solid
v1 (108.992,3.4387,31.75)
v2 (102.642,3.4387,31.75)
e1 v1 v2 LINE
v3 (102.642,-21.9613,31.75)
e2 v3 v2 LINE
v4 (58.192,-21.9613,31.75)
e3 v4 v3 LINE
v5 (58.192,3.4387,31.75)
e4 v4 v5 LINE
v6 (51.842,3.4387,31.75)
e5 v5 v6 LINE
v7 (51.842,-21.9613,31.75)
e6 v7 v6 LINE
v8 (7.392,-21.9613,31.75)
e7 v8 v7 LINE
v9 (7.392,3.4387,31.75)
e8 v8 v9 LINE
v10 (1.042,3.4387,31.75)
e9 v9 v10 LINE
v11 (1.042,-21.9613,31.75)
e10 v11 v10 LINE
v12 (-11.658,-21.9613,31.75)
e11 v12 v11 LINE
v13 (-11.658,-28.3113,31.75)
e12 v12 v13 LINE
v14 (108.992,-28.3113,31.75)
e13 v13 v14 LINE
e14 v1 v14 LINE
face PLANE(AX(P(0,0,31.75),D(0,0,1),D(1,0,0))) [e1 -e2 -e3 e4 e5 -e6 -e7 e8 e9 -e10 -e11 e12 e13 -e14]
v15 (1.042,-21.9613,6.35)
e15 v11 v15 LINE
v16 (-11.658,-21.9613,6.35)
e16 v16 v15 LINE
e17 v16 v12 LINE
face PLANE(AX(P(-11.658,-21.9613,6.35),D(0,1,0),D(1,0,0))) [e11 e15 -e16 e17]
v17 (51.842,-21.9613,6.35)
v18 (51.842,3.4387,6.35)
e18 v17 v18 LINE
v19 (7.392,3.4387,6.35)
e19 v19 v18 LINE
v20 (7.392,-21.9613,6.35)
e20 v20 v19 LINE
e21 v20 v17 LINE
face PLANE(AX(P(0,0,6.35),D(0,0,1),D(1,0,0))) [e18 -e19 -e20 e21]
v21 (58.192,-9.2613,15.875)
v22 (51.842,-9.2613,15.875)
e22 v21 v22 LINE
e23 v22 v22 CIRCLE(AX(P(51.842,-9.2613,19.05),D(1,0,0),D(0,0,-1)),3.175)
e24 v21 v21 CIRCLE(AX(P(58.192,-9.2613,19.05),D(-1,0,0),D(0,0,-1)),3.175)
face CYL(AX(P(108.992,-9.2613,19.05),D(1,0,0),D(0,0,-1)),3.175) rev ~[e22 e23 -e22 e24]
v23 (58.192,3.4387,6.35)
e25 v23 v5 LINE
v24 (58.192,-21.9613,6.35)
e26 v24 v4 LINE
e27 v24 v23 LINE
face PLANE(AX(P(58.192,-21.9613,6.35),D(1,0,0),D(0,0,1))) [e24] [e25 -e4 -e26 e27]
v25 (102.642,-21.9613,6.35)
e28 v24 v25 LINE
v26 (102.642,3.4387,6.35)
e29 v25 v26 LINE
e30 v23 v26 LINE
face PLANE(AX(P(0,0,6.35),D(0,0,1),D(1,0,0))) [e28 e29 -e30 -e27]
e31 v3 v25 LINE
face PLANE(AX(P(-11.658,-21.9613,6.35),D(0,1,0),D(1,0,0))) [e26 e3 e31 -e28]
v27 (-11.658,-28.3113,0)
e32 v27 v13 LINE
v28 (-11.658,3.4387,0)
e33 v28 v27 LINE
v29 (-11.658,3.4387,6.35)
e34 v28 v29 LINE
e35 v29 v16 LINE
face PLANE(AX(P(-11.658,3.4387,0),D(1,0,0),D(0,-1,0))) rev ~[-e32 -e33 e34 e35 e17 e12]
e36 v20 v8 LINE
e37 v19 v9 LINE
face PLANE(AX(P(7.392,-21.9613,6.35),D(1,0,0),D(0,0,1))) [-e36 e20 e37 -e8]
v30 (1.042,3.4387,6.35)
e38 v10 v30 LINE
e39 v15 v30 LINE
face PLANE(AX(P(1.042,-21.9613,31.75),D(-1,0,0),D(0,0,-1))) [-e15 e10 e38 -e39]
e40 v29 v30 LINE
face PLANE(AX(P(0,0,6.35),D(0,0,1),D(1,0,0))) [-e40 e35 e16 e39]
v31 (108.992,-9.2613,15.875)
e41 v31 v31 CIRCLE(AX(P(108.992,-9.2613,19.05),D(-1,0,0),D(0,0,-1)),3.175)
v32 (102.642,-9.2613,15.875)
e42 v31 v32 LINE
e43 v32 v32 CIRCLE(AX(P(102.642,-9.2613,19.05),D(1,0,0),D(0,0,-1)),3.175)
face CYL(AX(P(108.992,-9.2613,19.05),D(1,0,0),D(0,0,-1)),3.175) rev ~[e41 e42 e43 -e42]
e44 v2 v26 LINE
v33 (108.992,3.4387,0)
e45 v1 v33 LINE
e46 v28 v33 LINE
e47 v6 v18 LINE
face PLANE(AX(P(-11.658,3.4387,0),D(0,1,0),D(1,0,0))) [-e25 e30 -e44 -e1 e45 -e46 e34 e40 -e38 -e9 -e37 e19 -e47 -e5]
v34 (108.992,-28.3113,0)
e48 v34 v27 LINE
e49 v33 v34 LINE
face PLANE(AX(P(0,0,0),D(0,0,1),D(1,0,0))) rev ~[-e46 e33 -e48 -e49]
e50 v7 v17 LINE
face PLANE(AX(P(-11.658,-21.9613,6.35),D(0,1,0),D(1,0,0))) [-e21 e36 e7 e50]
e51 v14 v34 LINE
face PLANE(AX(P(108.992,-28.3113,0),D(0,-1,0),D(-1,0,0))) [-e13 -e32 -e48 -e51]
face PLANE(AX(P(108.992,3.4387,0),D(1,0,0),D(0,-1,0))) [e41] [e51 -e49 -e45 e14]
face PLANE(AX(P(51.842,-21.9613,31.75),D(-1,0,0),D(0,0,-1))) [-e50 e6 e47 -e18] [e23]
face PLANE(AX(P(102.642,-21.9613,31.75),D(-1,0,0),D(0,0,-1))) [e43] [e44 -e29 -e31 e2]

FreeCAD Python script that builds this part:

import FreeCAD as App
import Part
import Sketcher
from FreeCAD import Vector
Q = App.Units.Quantity


def add_polygon(sketch, points):
    """Adds a closed chain of lines whose ends are joined by coincident constraints."""
    first, n = sketch.GeometryCount, len(points)
    for a, b in zip(points, points[1:] + points[:1]):
        sketch.addGeometry(Part.LineSegment(App.Vector(*a, 0), App.Vector(*b, 0)), False)
    for i in range(n):
        sketch.addConstraint(Sketcher.Constraint("Coincident", first + i, 2, first + (i + 1) % n, 1))

doc = App.newDocument("Part")
body = doc.addObject("PartDesign::Body", "Body")

# Sketch on XY plane
sketch1 = body.newObject("Sketcher::SketchObject", "Sketch")
sketch1.AttachmentSupport = (doc.getObject("XY_Plane"), [""])
sketch1.MapMode = "FlatFace"
add_polygon(sketch1, [(109, 3), (-12, 3), (-12, -28), (109, -28)])  # lines 0-3
sketch1.addConstraint([
    Sketcher.Constraint("Horizontal", 0),
    Sketcher.Constraint("Vertical", 1),
    Sketcher.Constraint("Horizontal", 2),
    Sketcher.Constraint("Vertical", 3),
    Sketcher.Constraint("DistanceX", 0, 2, 0, 1, Q("4.75 in")),
    Sketcher.Constraint("DistanceY", 1, 2, 1, 1, Q("1.25 in")),
    Sketcher.Constraint("DistanceX", 0, 2, -1, 1, 11.658),
    Sketcher.Constraint("DistanceY", -1, 1, 0, 2, 3.4387),
])
pad1 = body.newObject("PartDesign::Pad", "Pad")
pad1.Profile = sketch1
pad1.Length = Q("0.25 in")

# Sketch on XY plane
sketch2 = body.newObject("Sketcher::SketchObject", "Sketch001")
sketch2.AttachmentSupport = (doc.getObject("XY_Plane"), [""])
sketch2.MapMode = "FlatFace"
sketch2.AttachmentOffset = App.Placement(Vector(0, 0, 0.25 * 25.4), App.Rotation())
add_polygon(sketch2, [(109, -22), (-12, -22), (-12, -28), (109, -28)])  # lines 0-3
sketch2.addConstraint([
    Sketcher.Constraint("Horizontal", 0),
    Sketcher.Constraint("Vertical", 1),
    Sketcher.Constraint("Horizontal", 2),
    Sketcher.Constraint("Vertical", 3),
    Sketcher.Constraint("DistanceY", 1, 2, 1, 1, Q("0.25 in")),
    Sketcher.Constraint("DistanceX", 0, 2, 0, 1, Q("4.75 in")),
    Sketcher.Constraint("DistanceX", 0, 2, -1, 1, 11.658),
    Sketcher.Constraint("DistanceY", 0, 2, -1, 1, 21.9613),
])
pad2 = body.newObject("PartDesign::Pad", "Pad001")
pad2.Profile = sketch2
pad2.Length = Q("1 in")

# Sketch on XZ plane
sketch3 = body.newObject("Sketcher::SketchObject", "Sketch002")
sketch3.AttachmentSupport = (doc.getObject("XZ_Plane"), [""])
sketch3.MapMode = "FlatFace"
sketch3.AttachmentOffset = App.Placement(Vector(0, 0, 21.9613), App.Rotation())
add_polygon(sketch3, [(7, 6), (1, 6), (1, 32), (7, 32)])  # lines 0-3
add_polygon(sketch3, [(58, 6), (52, 6), (52, 32), (58, 32)])  # lines 4-7
add_polygon(sketch3, [(109, 6), (103, 6), (103, 32), (109, 32)])  # lines 8-11
sketch3.addConstraint([
    Sketcher.Constraint("Horizontal", 0),
    Sketcher.Constraint("Vertical", 1),
    Sketcher.Constraint("Horizontal", 2),
    Sketcher.Constraint("Vertical", 3),
    Sketcher.Constraint("Horizontal", 4),
    Sketcher.Constraint("Vertical", 5),
    Sketcher.Constraint("Horizontal", 6),
    Sketcher.Constraint("Vertical", 7),
    Sketcher.Constraint("Horizontal", 8),
    Sketcher.Constraint("Vertical", 9),
    Sketcher.Constraint("Horizontal", 10),
    Sketcher.Constraint("Vertical", 11),
    Sketcher.Constraint("Horizontal", 3, 2, 4, 2),
    Sketcher.Constraint("Horizontal", 2, 2, 5, 2),
    Sketcher.Constraint("Horizontal", 7, 2, 8, 2),
    Sketcher.Constraint("Horizontal", 6, 2, 9, 2),
    Sketcher.Constraint("Equal", 2, 4),
    Sketcher.Constraint("Equal", 6, 8),
    Sketcher.Constraint("DistanceY", 1, 1, 1, 2, Q("1 in")),
    Sketcher.Constraint("DistanceX", 0, 2, 0, 1, Q("0.25 in")),
    Sketcher.Constraint("DistanceY", -1, 1, 0, 2, Q("0.25 in")),
    Sketcher.Constraint("DistanceX", 3, 2, 4, 2, Q("1.75 in")),
    Sketcher.Constraint("DistanceX", 7, 2, 8, 2, Q("1.75 in")),
    Sketcher.Constraint("DistanceX", -1, 1, 0, 2, 1.042),
])
pad3 = body.newObject("PartDesign::Pad", "Pad002")
pad3.Profile = sketch3
pad3.Length = Q("1 in")
pad3.Reversed = True

# Sketch on YZ plane
sketch4 = body.newObject("Sketcher::SketchObject", "Sketch003")
sketch4.AttachmentSupport = (doc.getObject("YZ_Plane"), [""])
sketch4.MapMode = "FlatFace"
sketch4.AttachmentOffset = App.Placement(Vector(0, 0, 108.992), App.Rotation())
sketch4.addGeometry(Part.Circle(Vector(-9.3, 19.1, 0), Vector(0, 0, 1), 3.2), False)
sketch4.addConstraint([
    Sketcher.Constraint("Diameter", 0, Q("0.25 in")),
    Sketcher.Constraint("DistanceY", -1, 1, 0, 3, Q("0.75 in")),
    Sketcher.Constraint("DistanceX", 0, 3, -1, 1, 9.2613),
])
pocket1 = body.newObject("PartDesign::Pocket", "Pocket")
pocket1.Profile = sketch4
pocket1.Length = Q("3 in")

doc.recompute()
